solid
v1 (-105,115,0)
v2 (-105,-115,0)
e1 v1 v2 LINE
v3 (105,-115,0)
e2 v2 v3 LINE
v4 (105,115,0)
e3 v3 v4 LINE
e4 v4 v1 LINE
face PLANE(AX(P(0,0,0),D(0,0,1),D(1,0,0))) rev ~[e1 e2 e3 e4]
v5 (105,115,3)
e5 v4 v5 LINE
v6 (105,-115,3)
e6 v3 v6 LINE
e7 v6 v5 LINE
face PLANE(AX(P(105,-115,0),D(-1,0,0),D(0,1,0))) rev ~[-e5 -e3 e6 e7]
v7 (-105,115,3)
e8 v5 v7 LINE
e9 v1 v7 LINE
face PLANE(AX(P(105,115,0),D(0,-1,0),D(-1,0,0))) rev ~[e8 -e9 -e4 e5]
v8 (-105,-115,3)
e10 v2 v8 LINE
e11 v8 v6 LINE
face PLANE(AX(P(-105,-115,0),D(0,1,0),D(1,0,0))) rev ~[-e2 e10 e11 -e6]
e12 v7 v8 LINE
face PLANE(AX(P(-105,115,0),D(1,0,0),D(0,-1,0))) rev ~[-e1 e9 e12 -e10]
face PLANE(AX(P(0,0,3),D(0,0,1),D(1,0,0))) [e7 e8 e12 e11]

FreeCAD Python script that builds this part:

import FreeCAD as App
import Part
import Sketcher
from FreeCAD import Vector
Q = App.Units.Quantity

doc = App.newDocument("Part")
body = doc.addObject("PartDesign::Body", "Body")

# Sketch on XY plane
sketch1 = body.newObject("Sketcher::SketchObject", "Sketch")
sketch1.AttachmentSupport = (doc.getObject("XY_Plane"), [""])
sketch1.MapMode = "FlatFace"
sketch1.addGeometry(Part.LineSegment(Vector(-105, 115, 0), Vector(-105, -115, 0)), False)
sketch1.addGeometry(Part.LineSegment(Vector(-105, -115, 0), Vector(105, -115, 0)), False)
sketch1.addGeometry(Part.LineSegment(Vector(105, -115, 0), Vector(105, 115, 0)), False)
sketch1.addGeometry(Part.LineSegment(Vector(105, 115, 0), Vector(-105, 115, 0)), False)
sketch1.addConstraint(Sketcher.Constraint("Coincident", 0, 2, 1, 1))
sketch1.addConstraint(Sketcher.Constraint("Coincident", 1, 2, 2, 1))
sketch1.addConstraint(Sketcher.Constraint("Coincident", 2, 2, 3, 1))
sketch1.addConstraint(Sketcher.Constraint("Coincident", 3, 2, 0, 1))
sketch1.addConstraint(Sketcher.Constraint("Vertical", 0))
sketch1.addConstraint(Sketcher.Constraint("Horizontal", 1))
sketch1.addConstraint(Sketcher.Constraint("Vertical", 2))
sketch1.addConstraint(Sketcher.Constraint("Horizontal", 3))
sketch1.addConstraint(Sketcher.Constraint("Symmetric", 0, 2, 2, 2, -1, 1))
sketch1.addConstraint(Sketcher.Constraint("DistanceX", 1, 1, 1, 2, Q("210 mm")))
sketch1.addConstraint(Sketcher.Constraint("DistanceY", 0, 2, 0, 1, Q("230 mm")))
pad1 = body.newObject("PartDesign::Pad", "Pad")
pad1.Profile = sketch1
pad1.Length = 3

doc.recompute()
